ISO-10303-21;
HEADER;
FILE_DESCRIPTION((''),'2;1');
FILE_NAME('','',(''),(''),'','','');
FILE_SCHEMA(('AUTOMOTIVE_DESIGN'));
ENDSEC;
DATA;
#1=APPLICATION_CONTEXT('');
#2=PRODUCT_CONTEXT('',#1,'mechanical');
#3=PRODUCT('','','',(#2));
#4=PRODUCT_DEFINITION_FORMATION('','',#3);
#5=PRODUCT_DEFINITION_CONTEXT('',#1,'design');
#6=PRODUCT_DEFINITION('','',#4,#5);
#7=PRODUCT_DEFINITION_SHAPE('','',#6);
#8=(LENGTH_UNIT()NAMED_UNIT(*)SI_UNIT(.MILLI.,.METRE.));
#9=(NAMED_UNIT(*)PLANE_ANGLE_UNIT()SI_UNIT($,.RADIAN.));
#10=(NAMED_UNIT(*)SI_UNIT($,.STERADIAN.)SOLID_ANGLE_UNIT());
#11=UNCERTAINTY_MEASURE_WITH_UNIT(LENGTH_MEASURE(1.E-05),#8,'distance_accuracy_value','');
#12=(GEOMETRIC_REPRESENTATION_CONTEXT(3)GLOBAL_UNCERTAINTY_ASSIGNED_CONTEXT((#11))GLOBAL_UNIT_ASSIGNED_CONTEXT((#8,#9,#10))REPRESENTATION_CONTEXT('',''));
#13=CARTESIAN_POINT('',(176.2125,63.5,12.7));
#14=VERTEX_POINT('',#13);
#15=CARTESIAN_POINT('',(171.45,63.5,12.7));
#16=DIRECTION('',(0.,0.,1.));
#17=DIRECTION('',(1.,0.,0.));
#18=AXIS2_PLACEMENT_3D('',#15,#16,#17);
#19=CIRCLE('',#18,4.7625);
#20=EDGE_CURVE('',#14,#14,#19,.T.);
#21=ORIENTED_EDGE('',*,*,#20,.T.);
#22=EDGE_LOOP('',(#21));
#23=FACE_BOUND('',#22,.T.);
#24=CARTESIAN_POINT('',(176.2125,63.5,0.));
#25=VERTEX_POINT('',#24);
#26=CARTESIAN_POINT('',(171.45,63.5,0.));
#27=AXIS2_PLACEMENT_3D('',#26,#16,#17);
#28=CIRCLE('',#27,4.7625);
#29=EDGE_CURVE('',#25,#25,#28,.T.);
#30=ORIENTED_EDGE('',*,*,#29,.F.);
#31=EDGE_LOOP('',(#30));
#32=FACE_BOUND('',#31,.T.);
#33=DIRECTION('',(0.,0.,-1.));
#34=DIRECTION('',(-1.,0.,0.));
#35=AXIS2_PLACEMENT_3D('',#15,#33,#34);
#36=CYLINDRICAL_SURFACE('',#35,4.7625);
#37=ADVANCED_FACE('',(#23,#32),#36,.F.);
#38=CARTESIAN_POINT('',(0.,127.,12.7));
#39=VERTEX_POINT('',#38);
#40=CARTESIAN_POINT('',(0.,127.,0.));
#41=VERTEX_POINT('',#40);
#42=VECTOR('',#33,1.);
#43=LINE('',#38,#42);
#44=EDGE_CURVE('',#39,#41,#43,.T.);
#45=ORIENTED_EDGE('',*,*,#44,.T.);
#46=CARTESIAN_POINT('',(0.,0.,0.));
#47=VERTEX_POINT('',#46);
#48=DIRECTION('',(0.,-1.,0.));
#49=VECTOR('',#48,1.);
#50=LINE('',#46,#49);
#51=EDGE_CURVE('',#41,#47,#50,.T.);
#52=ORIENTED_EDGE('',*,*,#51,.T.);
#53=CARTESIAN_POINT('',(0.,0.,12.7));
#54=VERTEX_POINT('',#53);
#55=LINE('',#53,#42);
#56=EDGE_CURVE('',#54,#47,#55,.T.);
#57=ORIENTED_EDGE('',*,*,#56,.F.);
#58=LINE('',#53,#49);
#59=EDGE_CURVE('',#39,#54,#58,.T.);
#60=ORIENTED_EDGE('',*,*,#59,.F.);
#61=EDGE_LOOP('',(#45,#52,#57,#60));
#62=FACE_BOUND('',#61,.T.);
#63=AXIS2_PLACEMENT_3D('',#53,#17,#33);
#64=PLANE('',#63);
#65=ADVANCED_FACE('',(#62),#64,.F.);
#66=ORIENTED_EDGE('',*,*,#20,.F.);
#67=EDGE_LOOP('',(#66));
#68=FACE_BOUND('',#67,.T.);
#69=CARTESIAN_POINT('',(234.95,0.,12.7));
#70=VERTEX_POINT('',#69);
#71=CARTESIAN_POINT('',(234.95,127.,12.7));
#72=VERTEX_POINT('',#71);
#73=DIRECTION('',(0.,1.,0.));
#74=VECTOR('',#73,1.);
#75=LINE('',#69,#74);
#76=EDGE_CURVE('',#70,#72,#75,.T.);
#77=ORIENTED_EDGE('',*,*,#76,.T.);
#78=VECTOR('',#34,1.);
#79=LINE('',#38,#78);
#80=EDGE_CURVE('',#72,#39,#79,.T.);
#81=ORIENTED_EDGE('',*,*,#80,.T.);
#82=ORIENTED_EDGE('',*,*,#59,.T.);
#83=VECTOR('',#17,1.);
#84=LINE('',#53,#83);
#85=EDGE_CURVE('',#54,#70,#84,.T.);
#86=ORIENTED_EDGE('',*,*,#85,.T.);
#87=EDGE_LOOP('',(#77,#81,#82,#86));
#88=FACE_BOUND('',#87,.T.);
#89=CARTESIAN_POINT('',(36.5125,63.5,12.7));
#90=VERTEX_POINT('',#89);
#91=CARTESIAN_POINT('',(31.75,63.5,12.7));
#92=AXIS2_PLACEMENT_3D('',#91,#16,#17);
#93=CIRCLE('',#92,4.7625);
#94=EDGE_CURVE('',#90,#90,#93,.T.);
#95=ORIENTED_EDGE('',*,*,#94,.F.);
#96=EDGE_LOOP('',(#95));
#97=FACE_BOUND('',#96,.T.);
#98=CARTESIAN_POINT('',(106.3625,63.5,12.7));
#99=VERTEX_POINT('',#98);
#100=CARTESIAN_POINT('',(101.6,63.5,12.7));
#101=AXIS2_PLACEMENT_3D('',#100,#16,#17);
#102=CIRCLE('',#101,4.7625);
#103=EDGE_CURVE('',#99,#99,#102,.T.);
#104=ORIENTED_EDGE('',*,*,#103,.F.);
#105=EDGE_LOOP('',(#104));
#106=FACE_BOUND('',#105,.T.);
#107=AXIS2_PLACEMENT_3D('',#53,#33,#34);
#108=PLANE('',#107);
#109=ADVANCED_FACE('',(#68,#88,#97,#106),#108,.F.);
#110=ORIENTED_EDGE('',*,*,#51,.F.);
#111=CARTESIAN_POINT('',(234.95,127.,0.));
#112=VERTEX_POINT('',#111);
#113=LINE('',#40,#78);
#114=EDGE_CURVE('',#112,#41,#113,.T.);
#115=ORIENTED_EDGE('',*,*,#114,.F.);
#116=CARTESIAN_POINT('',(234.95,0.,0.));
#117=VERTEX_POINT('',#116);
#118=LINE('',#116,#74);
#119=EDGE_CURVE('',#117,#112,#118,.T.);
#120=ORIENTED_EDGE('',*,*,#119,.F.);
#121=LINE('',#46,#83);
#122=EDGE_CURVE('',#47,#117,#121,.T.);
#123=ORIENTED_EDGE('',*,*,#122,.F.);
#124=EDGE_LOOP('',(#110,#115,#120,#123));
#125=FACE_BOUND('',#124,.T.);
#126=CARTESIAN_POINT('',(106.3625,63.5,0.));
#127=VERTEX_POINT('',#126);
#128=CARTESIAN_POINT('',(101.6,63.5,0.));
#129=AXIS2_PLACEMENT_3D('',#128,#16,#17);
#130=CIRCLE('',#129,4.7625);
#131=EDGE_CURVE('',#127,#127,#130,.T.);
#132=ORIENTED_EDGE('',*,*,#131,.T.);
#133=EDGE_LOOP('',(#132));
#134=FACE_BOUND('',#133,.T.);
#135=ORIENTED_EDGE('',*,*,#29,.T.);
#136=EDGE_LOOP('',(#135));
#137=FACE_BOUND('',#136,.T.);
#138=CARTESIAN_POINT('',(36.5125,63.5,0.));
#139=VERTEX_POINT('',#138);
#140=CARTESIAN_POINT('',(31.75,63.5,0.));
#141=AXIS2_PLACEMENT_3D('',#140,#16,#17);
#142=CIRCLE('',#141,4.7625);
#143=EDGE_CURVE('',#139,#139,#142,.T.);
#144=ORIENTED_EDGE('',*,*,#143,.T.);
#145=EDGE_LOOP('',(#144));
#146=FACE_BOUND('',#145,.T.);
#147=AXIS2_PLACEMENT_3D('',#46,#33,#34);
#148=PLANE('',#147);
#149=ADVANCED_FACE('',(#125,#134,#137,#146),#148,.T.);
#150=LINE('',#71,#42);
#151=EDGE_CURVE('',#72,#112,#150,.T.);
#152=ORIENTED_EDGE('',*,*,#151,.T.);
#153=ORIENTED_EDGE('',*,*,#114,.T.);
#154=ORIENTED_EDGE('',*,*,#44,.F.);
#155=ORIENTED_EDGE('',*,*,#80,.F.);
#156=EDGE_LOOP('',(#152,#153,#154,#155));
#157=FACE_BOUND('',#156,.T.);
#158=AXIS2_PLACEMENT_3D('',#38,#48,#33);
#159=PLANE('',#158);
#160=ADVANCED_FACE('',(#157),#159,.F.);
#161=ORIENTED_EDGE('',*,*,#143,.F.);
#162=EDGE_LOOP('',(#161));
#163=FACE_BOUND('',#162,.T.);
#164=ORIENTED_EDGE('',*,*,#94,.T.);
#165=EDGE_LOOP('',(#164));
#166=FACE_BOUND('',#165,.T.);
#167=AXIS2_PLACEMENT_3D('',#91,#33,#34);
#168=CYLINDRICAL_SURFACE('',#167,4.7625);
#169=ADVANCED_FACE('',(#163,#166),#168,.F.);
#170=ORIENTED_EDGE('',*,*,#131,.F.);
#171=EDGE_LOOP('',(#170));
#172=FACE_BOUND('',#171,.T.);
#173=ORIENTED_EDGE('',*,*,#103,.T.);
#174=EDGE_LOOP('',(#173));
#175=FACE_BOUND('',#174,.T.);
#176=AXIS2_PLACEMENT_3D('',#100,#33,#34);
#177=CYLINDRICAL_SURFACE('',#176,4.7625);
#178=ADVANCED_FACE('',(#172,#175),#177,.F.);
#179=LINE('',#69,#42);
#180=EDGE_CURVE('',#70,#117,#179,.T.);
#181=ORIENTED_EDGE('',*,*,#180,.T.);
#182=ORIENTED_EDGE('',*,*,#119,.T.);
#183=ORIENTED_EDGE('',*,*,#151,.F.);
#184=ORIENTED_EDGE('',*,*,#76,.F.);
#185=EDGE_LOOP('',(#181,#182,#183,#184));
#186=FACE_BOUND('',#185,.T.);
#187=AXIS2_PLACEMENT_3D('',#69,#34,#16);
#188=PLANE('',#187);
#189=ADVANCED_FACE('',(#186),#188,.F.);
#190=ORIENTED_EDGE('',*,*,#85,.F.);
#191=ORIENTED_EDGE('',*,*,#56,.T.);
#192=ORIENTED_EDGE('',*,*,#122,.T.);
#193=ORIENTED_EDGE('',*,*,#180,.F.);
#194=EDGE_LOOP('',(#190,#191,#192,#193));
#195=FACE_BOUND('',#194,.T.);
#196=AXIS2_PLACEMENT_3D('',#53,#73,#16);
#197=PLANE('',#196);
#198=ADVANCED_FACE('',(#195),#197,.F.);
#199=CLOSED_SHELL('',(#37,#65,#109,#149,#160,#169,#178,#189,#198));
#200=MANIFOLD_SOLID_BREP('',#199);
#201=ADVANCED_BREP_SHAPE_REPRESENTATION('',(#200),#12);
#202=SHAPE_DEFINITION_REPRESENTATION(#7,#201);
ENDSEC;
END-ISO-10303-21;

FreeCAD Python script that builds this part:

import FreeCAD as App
import Part
import Sketcher
Q = App.Units.Quantity


def add_polygon(sketch, points):
    """Adds a closed chain of lines whose ends are joined by coincident constraints."""
    first, n = sketch.GeometryCount, len(points)
    for a, b in zip(points, points[1:] + points[:1]):
        sketch.addGeometry(Part.LineSegment(App.Vector(*a, 0), App.Vector(*b, 0)), False)
    for i in range(n):
        sketch.addConstraint(Sketcher.Constraint("Coincident", first + i, 2, first + (i + 1) % n, 1))

doc = App.newDocument("Part")
body = doc.addObject("PartDesign::Body", "Body")

sketch1 = doc.addObject("Sketcher::SketchObject", "Sketch")
body.addObject(sketch1)
sketch1.AttachmentSupport = (doc.XY_Plane, [""])
sketch1.MapMode = "FlatFace"
add_polygon(sketch1, [(0, 127), (0, 0), (234.9, 0), (234.9, 127)])
sketch1.addGeometry(Part.Circle(App.Vector(31.8, 63.5, 0), App.Vector(0, 0, 1), 4.8), False)
sketch1.addGeometry(Part.Circle(App.Vector(101.6, 63.5, 0), App.Vector(0, 0, 1), 4.8), False)
sketch1.addGeometry(Part.Circle(App.Vector(171.4, 63.5, 0), App.Vector(0, 0, 1), 4.8), False)
sketch1.addConstraint([
    Sketcher.Constraint("Vertical", 0),
    Sketcher.Constraint("Horizontal", 1),
    Sketcher.Constraint("Vertical", 2),
    Sketcher.Constraint("Horizontal", 3),
    Sketcher.Constraint("Coincident", 0, 2, -1, 1),
    Sketcher.Constraint("Equal", 4, 5),
    Sketcher.Constraint("Equal", 5, 6),
    Sketcher.Constraint("Horizontal", 4, 3, 5, 3),
    Sketcher.Constraint("Horizontal", 5, 3, 6, 3),
    Sketcher.Constraint("DistanceY", 0, 2, 0, 1, Q("5 in")),
    Sketcher.Constraint("Diameter", 4, Q("0.375 in")),
    Sketcher.Constraint("DistanceX", -1, 1, 5, 3, Q("4 in")),
    Sketcher.Constraint("DistanceX", 4, 3, 1, 2, Q("8 in")),
    Sketcher.Constraint("DistanceX", 1, 1, 1, 2, Q("9.25 in")),
    Sketcher.Constraint("DistanceY", -1, 1, 4, 3, Q("2.5 in")),
    Sketcher.Constraint("DistanceX", 4, 3, 6, 3, Q("5.5 in")),
])
pad1 = doc.addObject("PartDesign::Pad", "Pad")
body.addObject(pad1)
pad1.Profile = sketch1
pad1.Length = Q("0.5 in")

doc.recompute()
